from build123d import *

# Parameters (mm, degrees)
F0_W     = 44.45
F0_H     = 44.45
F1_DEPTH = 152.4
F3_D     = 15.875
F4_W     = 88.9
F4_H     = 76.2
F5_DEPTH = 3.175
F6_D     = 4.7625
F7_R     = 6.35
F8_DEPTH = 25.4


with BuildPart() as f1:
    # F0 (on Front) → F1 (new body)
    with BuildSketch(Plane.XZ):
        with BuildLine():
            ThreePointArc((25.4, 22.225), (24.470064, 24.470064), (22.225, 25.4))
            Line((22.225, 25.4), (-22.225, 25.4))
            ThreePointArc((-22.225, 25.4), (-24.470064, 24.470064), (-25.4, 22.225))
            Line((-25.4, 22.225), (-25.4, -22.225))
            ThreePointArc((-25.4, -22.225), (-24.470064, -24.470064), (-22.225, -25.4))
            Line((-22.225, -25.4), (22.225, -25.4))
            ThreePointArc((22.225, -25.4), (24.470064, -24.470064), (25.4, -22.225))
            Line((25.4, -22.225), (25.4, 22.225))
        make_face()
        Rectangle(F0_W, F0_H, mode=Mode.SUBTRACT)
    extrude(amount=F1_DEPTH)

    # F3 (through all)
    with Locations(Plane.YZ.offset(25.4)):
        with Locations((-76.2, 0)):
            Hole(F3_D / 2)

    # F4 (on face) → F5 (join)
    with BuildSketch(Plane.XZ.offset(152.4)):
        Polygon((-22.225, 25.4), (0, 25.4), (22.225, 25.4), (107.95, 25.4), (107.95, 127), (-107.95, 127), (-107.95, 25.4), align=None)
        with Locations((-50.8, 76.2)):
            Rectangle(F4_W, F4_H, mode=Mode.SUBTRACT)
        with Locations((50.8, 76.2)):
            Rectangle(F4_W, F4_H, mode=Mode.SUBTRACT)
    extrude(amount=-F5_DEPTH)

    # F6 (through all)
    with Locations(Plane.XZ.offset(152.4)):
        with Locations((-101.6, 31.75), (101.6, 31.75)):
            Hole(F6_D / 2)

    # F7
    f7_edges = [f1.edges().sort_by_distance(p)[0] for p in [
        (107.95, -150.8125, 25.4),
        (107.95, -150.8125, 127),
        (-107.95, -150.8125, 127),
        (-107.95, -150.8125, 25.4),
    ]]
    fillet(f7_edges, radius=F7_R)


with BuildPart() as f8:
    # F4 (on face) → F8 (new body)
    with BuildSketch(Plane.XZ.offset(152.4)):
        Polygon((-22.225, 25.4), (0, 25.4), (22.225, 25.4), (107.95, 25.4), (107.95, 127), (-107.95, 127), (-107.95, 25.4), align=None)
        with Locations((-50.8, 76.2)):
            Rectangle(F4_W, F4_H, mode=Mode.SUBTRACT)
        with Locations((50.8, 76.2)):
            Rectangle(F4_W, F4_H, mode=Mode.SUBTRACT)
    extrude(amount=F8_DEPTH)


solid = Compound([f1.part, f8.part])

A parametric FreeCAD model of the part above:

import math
import FreeCAD as App
import Part
import Sketcher

V = App.Vector
Q = App.Units.Quantity


def edges_at(feature, points):
    """Names of the edges that pass closest to the given points."""
    edges = feature.Shape.Edges
    near = lambda p: min(range(len(edges)), key=lambda i: edges[i].distToShape(Part.Vertex(*p))[0])
    return sorted({f"Edge{near(p) + 1}" for p in points})


def add_polygon(sketch, points):
    """Adds a closed chain of lines whose ends are joined by coincident constraints."""
    first, n = sketch.GeometryCount, len(points)
    for a, b in zip(points, points[1:] + points[:1]):
        sketch.addGeometry(Part.LineSegment(App.Vector(*a, 0), App.Vector(*b, 0)), False)
    for i in range(n):
        sketch.addConstraint(Sketcher.Constraint("Coincident", first + i, 2, first + (i + 1) % n, 1))

doc = App.newDocument("Part")
body = doc.addObject("PartDesign::Body", "Body")

# Sketch on XZ plane
sketch1 = body.newObject("Sketcher::SketchObject", "Sketch")
sketch1.AttachmentSupport = (doc.getObject("XZ_Plane"), [""])
sketch1.MapMode = "FlatFace"
sketch1.addGeometry(Part.ArcOfCircle(Part.Circle(V(22.2, 22.2, 0), V(0, 0, 1), 3.2), math.radians(0), math.radians(90)), False)  # 0
sketch1.addGeometry(Part.LineSegment(V(22.2, 25.4, 0), V(-22.2, 25.4, 0)), False)  # 1
sketch1.addGeometry(Part.ArcOfCircle(Part.Circle(V(-22.2, 22.2, 0), V(0, 0, 1), 3.2), math.radians(90), math.radians(180)), False)  # 2
sketch1.addGeometry(Part.LineSegment(V(-25.4, 22.2, 0), V(-25.4, -22.2, 0)), False)  # 3
sketch1.addGeometry(Part.ArcOfCircle(Part.Circle(V(-22.2, -22.2, 0), V(0, 0, 1), 3.2), math.radians(-180), math.radians(-90)), False)  # 4
sketch1.addGeometry(Part.LineSegment(V(-22.2, -25.4, 0), V(22.2, -25.4, 0)), False)  # 5
sketch1.addGeometry(Part.ArcOfCircle(Part.Circle(V(22.2, -22.2, 0), V(0, 0, 1), 3.2), math.radians(-90), math.radians(0)), False)  # 6
sketch1.addGeometry(Part.LineSegment(V(25.4, -22.2, 0), V(25.4, 22.2, 0)), False)  # 7
add_polygon(sketch1, [(22.2, -22.2), (-22.2, -22.2), (-22.2, 22.2), (22.2, 22.2)])  # lines 8-11
sketch1.addConstraint([
    Sketcher.Constraint("Tangent", 0, 2, 1, 1),
    Sketcher.Constraint("Tangent", 1, 2, 2, 1),
    Sketcher.Constraint("Tangent", 2, 2, 3, 1),
    Sketcher.Constraint("Tangent", 3, 2, 4, 1),
    Sketcher.Constraint("Tangent", 4, 2, 5, 1),
    Sketcher.Constraint("Tangent", 5, 2, 6, 1),
    Sketcher.Constraint("Tangent", 6, 2, 7, 1),
    Sketcher.Constraint("Tangent", 7, 2, 0, 1),
    Sketcher.Constraint("Horizontal", 1),
    Sketcher.Constraint("Vertical", 3),
    Sketcher.Constraint("Horizontal", 5),
    Sketcher.Constraint("Vertical", 7),
    Sketcher.Constraint("Horizontal", 8),
    Sketcher.Constraint("Vertical", 9),
    Sketcher.Constraint("Horizontal", 10),
    Sketcher.Constraint("Vertical", 11),
    Sketcher.Constraint("Coincident", 8, 2, 4, 3),
    Sketcher.Constraint("Coincident", 9, 2, 2, 3),
    Sketcher.Constraint("Coincident", 10, 2, 0, 3),
    Sketcher.Constraint("Equal", 4, 6),
    Sketcher.Constraint("Symmetric", 0, 3, 4, 3, -1, 1),
    Sketcher.Constraint("Equal", 10, 3),
    Sketcher.Constraint("DistanceY", -1, 1, 0, 2, Q("1 in")),
    Sketcher.Constraint("Radius", 0, Q("0.125 in")),
])
pad1 = body.newObject("PartDesign::Pad", "Pad")
pad1.Profile = sketch1
pad1.Length = Q("6 in")

# Sketch on YZ plane
sketch2 = body.newObject("Sketcher::SketchObject", "Sketch001")
sketch2.AttachmentSupport = (doc.getObject("YZ_Plane"), [""])
sketch2.MapMode = "FlatFace"
sketch2.AttachmentOffset = App.Placement(V(0, 0, 1 * 25.4), App.Rotation())
sketch2.addGeometry(Part.Circle(V(-76, 0, 0), V(0, 0, 1), 8), False)
sketch2.addConstraint([
    Sketcher.Constraint("PointOnObject", 0, 3, -1),
    Sketcher.Constraint("Diameter", 0, Q("0.625 in")),
    Sketcher.Constraint("DistanceX", 0, 3, -1, 1, Q("3 in")),
])
doc.recompute()
hole = body.newObject("PartDesign::Hole", "Hole")
hole.Profile = sketch2
hole.ThreadType = "None"
hole.Diameter = Q("0.625 in")
hole.DepthType = "ThroughAll"

# Sketch on XZ plane
sketch3 = body.newObject("Sketcher::SketchObject", "Sketch002")
sketch3.AttachmentSupport = (doc.getObject("XZ_Plane"), [""])
sketch3.MapMode = "FlatFace"
sketch3.AttachmentOffset = App.Placement(V(0, 0, 6 * 25.4), App.Rotation())
add_polygon(sketch3, [(108, 25), (108, 127), (-108, 127), (-108, 25)])  # lines 0-3
add_polygon(sketch3, [(-6, 38), (-95, 38), (-95, 114), (-6, 114)])  # lines 4-7
add_polygon(sketch3, [(95, 38), (6, 38), (6, 114), (95, 114)])  # lines 8-11
sketch3.addConstraint([
    Sketcher.Constraint("Vertical", 0),
    Sketcher.Constraint("Horizontal", 1),
    Sketcher.Constraint("Vertical", 2),
    Sketcher.Constraint("Horizontal", 3),
    Sketcher.Constraint("Horizontal", 4),
    Sketcher.Constraint("Vertical", 5),
    Sketcher.Constraint("Horizontal", 6),
    Sketcher.Constraint("Vertical", 7),
    Sketcher.Constraint("Horizontal", 8),
    Sketcher.Constraint("Vertical", 9),
    Sketcher.Constraint("Horizontal", 10),
    Sketcher.Constraint("Vertical", 11),
    Sketcher.Constraint("Symmetric", 7, 2, 8, 2, -2),
    Sketcher.Constraint("Symmetric", 5, 2, 10, 2, -2),
    Sketcher.Constraint("DistanceY", 0, 1, 0, 2, Q("4 in")),
    Sketcher.Constraint("DistanceY", 5, 1, 5, 2, Q("3 in")),
    Sketcher.Constraint("DistanceX", 1, 2, 1, 1, Q("8.5 in")),
    Sketcher.Constraint("DistanceX", 4, 2, 4, 1, Q("3.5 in")),
    Sketcher.Constraint("DistanceY", -1, 1, 0, 2, Q("5 in")),
    Sketcher.Constraint("DistanceX", 4, 2, 3, 2, Q("8 in")),
    Sketcher.Constraint("DistanceX", 4, 2, 8, 2, Q("4 in")),
    Sketcher.Constraint("DistanceY", -1, 1, 4, 2, Q("1.5 in")),
])
pad2 = body.newObject("PartDesign::Pad", "Pad001")
pad2.Profile = sketch3
pad2.Length = Q("0.125 in")
pad2.Reversed = True

# Sketch on XZ plane
sketch4 = body.newObject("Sketcher::SketchObject", "Sketch003")
sketch4.AttachmentSupport = (doc.getObject("XZ_Plane"), [""])
sketch4.MapMode = "FlatFace"
sketch4.AttachmentOffset = App.Placement(V(0, 0, 6 * 25.4), App.Rotation())
sketch4.addGeometry([
    Part.Circle(V(-101.6, 31.8, 0), V(0, 0, 1), 2.4),
    Part.Circle(V(101.6, 31.8, 0), V(0, 0, 1), 2.4),
], False)
sketch4.addConstraint([
    Sketcher.Constraint("Equal", 0, 1),
    Sketcher.Constraint("Symmetric", 0, 3, 1, 3, -2),
    Sketcher.Constraint("Diameter", 0, Q("0.1875 in")),
    Sketcher.Constraint("DistanceX", 0, 3, -1, 1, Q("4 in")),
    Sketcher.Constraint("DistanceY", -1, 1, 0, 3, Q("1.25 in")),
])
doc.recompute()
hole2 = body.newObject("PartDesign::Hole", "Hole001")
hole2.Profile = sketch4
hole2.ThreadType = "None"
hole2.Diameter = Q("0.1875 in")
hole2.DepthType = "ThroughAll"
doc.recompute()

fillet = body.newObject("PartDesign::Fillet", "Fillet")
fillet.Base = (hole2, edges_at(hole2, [
    (107.95, -150.812, 25.4),
    (107.95, -150.812, 127),
    (-107.95, -150.812, 127),
    (-107.95, -150.812, 25.4),
]))
fillet.Radius = Q("0.25 in")
body2 = doc.addObject("PartDesign::Body", "Body001")

# Sketch on XZ plane
sketch5 = body2.newObject("Sketcher::SketchObject", "Sketch004")
sketch5.AttachmentSupport = (doc.getObject("XZ_Plane001"), [""])
sketch5.MapMode = "FlatFace"
sketch5.AttachmentOffset = App.Placement(V(0, 0, 6 * 25.4), App.Rotation())
add_polygon(sketch5, [(108, 25), (108, 127), (-108, 127), (-108, 25)])  # lines 0-3
add_polygon(sketch5, [(-6, 38), (-95, 38), (-95, 114), (-6, 114)])  # lines 4-7
add_polygon(sketch5, [(95, 38), (6, 38), (6, 114), (95, 114)])  # lines 8-11
sketch5.addConstraint([
    Sketcher.Constraint("Vertical", 0),
    Sketcher.Constraint("Horizontal", 1),
    Sketcher.Constraint("Vertical", 2),
    Sketcher.Constraint("Horizontal", 3),
    Sketcher.Constraint("Horizontal", 4),
    Sketcher.Constraint("Vertical", 5),
    Sketcher.Constraint("Horizontal", 6),
    Sketcher.Constraint("Vertical", 7),
    Sketcher.Constraint("Horizontal", 8),
    Sketcher.Constraint("Vertical", 9),
    Sketcher.Constraint("Horizontal", 10),
    Sketcher.Constraint("Vertical", 11),
    Sketcher.Constraint("Symmetric", 7, 2, 8, 2, -2),
    Sketcher.Constraint("Symmetric", 5, 2, 10, 2, -2),
    Sketcher.Constraint("DistanceY", 0, 1, 0, 2, Q("4 in")),
    Sketcher.Constraint("DistanceY", 5, 1, 5, 2, Q("3 in")),
    Sketcher.Constraint("DistanceX", 1, 2, 1, 1, Q("8.5 in")),
    Sketcher.Constraint("DistanceX", 4, 2, 4, 1, Q("3.5 in")),
    Sketcher.Constraint("DistanceY", -1, 1, 0, 2, Q("5 in")),
    Sketcher.Constraint("DistanceX", 4, 2, 3, 2, Q("8 in")),
    Sketcher.Constraint("DistanceX", 4, 2, 8, 2, Q("4 in")),
    Sketcher.Constraint("DistanceY", -1, 1, 4, 2, Q("1.5 in")),
])
pad3 = body2.newObject("PartDesign::Pad", "Pad002")
pad3.Profile = sketch5
pad3.Length = Q("1 in")

doc.recompute()
